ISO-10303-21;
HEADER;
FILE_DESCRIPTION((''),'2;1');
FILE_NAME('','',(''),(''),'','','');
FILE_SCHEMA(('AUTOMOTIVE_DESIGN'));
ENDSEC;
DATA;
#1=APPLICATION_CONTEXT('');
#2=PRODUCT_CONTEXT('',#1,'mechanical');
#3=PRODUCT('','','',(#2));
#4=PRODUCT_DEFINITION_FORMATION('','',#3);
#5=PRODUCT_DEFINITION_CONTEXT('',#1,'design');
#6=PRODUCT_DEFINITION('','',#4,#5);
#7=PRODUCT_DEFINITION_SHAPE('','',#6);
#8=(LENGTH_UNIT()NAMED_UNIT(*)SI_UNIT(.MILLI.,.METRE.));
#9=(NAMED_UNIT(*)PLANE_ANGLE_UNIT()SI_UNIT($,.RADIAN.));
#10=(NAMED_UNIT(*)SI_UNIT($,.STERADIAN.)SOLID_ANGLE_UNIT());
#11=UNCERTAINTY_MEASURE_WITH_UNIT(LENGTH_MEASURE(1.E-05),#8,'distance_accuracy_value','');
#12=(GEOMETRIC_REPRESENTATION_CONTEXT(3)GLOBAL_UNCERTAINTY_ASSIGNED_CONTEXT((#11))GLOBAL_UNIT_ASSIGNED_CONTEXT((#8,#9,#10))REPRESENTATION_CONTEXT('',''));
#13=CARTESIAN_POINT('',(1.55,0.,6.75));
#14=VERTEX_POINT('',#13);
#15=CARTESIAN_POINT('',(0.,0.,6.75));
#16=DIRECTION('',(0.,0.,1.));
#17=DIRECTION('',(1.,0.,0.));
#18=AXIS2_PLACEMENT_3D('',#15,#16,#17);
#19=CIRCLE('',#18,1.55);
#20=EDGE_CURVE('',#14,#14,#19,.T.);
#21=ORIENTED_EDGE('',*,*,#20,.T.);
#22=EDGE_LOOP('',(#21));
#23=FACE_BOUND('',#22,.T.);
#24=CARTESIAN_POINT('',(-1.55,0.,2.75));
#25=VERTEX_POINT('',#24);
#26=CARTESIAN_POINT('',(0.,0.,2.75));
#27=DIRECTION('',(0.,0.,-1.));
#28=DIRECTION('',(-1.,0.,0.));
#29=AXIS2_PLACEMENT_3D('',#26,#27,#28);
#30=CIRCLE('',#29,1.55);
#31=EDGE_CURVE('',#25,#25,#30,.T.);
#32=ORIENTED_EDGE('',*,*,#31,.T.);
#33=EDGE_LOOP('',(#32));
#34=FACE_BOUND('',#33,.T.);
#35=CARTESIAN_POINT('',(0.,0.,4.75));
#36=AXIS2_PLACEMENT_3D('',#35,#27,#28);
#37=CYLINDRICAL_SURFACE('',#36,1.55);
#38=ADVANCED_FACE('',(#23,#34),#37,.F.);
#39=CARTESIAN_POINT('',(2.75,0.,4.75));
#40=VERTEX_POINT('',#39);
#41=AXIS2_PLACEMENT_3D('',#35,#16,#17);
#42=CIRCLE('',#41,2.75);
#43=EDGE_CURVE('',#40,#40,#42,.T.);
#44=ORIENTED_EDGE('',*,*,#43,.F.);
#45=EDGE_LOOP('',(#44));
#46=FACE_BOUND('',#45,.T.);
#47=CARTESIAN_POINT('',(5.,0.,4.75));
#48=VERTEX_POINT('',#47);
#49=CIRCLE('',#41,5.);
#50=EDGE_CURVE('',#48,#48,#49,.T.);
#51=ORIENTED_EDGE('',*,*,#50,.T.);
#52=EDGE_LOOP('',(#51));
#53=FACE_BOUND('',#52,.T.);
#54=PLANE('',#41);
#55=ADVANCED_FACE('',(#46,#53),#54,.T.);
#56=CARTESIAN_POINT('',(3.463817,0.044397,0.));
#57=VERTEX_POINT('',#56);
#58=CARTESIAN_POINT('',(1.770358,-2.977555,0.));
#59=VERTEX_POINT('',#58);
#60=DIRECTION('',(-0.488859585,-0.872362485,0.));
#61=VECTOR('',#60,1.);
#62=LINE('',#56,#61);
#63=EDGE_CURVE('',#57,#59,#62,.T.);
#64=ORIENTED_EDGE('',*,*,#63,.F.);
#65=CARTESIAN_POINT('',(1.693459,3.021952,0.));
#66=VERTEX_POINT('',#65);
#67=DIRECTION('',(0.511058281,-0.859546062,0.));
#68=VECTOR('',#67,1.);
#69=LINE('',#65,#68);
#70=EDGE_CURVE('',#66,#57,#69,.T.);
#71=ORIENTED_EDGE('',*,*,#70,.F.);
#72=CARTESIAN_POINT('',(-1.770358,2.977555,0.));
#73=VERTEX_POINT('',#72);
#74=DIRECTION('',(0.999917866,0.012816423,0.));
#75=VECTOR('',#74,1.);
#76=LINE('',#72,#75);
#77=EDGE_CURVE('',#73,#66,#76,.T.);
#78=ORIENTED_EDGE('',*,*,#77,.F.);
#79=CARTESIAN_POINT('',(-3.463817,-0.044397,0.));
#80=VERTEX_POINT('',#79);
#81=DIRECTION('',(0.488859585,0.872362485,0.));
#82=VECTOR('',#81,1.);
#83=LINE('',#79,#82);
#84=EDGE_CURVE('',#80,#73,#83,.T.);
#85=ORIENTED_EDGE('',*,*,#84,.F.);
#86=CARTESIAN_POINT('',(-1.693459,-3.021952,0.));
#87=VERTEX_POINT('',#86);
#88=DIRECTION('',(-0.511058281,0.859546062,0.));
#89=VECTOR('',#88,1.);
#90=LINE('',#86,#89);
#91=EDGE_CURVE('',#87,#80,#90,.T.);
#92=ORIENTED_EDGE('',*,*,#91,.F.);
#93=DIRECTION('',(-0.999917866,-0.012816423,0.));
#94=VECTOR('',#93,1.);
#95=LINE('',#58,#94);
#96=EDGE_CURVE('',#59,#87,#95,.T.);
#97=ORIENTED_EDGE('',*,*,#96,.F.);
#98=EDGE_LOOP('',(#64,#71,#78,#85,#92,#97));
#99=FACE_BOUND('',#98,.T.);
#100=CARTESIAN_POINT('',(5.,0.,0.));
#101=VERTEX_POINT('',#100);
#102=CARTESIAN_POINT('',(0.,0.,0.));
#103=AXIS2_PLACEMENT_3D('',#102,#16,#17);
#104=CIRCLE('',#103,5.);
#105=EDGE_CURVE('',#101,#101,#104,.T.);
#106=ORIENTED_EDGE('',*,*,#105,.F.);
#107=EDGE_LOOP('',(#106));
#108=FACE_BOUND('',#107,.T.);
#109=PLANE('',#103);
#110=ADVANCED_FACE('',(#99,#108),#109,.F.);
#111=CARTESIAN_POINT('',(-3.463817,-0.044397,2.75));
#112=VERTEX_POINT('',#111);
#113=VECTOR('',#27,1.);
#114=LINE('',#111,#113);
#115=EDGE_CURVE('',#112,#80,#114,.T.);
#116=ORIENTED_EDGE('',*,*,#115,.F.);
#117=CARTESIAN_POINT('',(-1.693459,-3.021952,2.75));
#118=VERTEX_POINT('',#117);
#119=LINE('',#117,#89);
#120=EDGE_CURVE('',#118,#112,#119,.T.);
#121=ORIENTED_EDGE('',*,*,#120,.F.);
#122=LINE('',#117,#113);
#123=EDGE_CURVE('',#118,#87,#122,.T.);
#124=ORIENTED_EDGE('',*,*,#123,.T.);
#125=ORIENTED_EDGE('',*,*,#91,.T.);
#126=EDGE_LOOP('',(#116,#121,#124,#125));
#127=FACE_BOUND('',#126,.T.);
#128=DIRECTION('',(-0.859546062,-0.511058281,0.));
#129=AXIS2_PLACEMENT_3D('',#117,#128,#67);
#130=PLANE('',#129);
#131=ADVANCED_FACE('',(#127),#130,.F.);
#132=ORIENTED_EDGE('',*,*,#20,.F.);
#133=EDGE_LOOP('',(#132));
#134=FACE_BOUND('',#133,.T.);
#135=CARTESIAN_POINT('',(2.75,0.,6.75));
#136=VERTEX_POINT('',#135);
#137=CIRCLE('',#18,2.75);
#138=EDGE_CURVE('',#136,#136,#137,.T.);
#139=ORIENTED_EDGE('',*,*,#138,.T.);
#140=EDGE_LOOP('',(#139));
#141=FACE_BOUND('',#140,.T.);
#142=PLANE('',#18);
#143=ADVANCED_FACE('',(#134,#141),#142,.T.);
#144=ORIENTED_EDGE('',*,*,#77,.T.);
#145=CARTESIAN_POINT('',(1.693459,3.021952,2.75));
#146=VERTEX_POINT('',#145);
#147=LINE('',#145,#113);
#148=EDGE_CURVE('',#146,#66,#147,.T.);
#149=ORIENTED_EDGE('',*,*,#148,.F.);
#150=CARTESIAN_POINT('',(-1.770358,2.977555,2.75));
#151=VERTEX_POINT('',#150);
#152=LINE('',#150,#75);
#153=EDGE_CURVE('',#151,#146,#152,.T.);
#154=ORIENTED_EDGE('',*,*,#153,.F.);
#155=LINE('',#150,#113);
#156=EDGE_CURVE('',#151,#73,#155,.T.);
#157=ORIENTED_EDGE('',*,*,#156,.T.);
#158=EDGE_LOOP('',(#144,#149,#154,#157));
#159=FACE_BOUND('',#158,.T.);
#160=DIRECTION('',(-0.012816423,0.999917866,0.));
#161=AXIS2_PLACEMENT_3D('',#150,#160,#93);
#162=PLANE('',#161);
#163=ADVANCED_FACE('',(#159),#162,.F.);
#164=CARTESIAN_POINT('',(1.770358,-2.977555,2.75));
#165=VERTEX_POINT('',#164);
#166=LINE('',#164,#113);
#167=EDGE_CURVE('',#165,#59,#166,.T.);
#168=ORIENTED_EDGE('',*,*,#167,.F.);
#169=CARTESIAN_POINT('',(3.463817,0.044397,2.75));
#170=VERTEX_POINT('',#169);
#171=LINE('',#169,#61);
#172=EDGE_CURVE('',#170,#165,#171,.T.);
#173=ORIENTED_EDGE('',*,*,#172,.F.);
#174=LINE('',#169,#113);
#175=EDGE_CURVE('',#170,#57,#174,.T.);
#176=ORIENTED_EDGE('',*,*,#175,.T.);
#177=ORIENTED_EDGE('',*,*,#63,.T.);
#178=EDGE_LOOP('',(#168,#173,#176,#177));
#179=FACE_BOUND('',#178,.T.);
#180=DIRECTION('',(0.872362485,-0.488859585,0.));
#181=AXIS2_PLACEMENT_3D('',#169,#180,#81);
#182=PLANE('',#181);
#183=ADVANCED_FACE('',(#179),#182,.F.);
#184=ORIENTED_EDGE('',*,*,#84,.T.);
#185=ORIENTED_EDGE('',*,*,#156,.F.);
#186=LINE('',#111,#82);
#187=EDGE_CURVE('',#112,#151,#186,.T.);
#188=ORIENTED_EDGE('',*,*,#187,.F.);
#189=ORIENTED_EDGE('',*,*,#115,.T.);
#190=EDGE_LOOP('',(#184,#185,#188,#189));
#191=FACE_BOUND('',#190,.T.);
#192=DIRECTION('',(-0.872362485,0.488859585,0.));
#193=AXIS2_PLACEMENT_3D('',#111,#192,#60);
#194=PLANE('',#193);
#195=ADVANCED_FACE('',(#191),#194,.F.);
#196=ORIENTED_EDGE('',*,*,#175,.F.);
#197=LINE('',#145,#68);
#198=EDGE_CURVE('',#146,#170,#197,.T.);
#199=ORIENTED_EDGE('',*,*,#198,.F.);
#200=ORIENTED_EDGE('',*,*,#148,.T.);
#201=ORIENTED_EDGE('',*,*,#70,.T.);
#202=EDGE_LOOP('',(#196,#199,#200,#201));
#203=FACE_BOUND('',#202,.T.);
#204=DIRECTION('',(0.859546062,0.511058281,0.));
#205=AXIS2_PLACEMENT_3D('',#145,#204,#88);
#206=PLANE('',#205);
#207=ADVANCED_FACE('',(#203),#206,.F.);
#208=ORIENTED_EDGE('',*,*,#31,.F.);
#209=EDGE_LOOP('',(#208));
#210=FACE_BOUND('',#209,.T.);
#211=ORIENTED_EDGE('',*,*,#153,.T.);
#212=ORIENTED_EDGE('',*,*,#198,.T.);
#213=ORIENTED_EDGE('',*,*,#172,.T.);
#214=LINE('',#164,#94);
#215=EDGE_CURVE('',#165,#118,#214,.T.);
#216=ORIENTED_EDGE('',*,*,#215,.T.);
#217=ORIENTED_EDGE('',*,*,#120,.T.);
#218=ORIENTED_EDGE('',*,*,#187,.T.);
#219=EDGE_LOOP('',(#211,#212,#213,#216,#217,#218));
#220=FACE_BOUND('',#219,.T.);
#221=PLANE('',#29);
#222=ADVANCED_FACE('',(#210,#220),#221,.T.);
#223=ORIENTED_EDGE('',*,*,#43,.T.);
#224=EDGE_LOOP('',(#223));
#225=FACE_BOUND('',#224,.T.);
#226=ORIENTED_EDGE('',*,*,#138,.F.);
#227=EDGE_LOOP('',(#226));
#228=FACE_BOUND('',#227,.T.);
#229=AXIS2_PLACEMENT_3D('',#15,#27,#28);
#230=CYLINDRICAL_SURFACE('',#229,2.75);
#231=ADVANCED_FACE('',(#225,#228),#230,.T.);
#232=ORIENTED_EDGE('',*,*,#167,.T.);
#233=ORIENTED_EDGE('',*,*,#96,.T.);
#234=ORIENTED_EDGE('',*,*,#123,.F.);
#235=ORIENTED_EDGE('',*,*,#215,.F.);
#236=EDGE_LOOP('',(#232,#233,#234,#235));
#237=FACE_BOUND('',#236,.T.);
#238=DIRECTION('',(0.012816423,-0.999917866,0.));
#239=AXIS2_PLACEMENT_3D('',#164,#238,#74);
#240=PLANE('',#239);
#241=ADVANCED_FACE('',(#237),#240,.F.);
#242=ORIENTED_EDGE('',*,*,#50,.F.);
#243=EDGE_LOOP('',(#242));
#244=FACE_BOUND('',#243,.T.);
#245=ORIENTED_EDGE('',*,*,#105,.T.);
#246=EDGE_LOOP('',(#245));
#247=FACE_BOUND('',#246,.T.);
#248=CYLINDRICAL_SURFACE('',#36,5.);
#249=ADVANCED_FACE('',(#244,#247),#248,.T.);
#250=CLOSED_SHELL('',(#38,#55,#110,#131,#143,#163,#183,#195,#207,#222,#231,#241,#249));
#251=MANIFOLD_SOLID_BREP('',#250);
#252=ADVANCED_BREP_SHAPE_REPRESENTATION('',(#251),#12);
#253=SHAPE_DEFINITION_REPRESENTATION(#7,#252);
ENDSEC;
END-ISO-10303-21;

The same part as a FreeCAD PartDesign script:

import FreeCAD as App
import Part
import Sketcher

V = App.Vector


def add_polygon(sketch, points):
    """Adds a closed chain of lines whose ends are joined by coincident constraints."""
    first, n = sketch.GeometryCount, len(points)
    for a, b in zip(points, points[1:] + points[:1]):
        sketch.addGeometry(Part.LineSegment(App.Vector(*a, 0), App.Vector(*b, 0)), False)
    for i in range(n):
        sketch.addConstraint(Sketcher.Constraint("Coincident", first + i, 2, first + (i + 1) % n, 1))

doc = App.newDocument("Part")
body = doc.addObject("PartDesign::Body", "Body")

sketch1 = body.newObject("Sketcher::SketchObject", "Sketch")
sketch1.AttachmentSupport = (doc.getObject("XY_Plane"), [""])
sketch1.MapMode = "FlatFace"
sketch1.addGeometry([
    Part.Circle(V(0, 0, 0), V(0, 0, 1), 5),
    Part.Circle(V(0, 0, 0), V(0, 0, 1), 1.6),
], False)
sketch1.addConstraint([
    Sketcher.Constraint("Coincident", 0, 3, -1, 1),
    Sketcher.Constraint("Coincident", 1, 3, -1, 1),
    Sketcher.Constraint("Diameter", 0, 10.0),
    Sketcher.Constraint("Diameter", 1, 3.1),
])
pad1 = body.newObject("PartDesign::Pad", "Pad")
pad1.Profile = sketch1
pad1.Length = 4.75

sketch2 = body.newObject("Sketcher::SketchObject", "Sketch001")
sketch2.AttachmentSupport = (doc.getObject("XY_Plane"), [""])
sketch2.MapMode = "FlatFace"
sketch2.AttachmentOffset = App.Placement(V(0, 0, 4.75), App.Rotation())
sketch2.addGeometry([
    Part.Circle(V(0, 0, 0), V(0, 0, 1), 2.8),
    Part.Circle(V(0, 0, 0), V(0, 0, 1), 1.6),
], False)
sketch2.addConstraint([
    Sketcher.Constraint("Coincident", 0, 3, -1, 1),
    Sketcher.Constraint("Coincident", 1, 3, -1, 1),
    Sketcher.Constraint("Diameter", 0, 5.5),
    Sketcher.Constraint("Diameter", 1, 3.1),
])
pad2 = body.newObject("PartDesign::Pad", "Pad001")
pad2.Profile = sketch2
pad2.Length = 2

sketch3 = body.newObject("Sketcher::SketchObject", "Sketch002")
sketch3.AttachmentSupport = (doc.getObject("XY_Plane"), [""])
sketch3.MapMode = "FlatFace"
add_polygon(sketch3, [(-1.770358, 2.977555), (1.693459, 3.021952), (3.463817, 0.044397), (1.770358, -2.977555), (-1.693459, -3.021952), (-3.463817, -0.044397)])
sketch3.addConstraint([
    Sketcher.Constraint("Symmetric", 0, 2, 3, 2, -1, 1),
    Sketcher.Constraint("Symmetric", 1, 2, 4, 2, -1, 1),
    Sketcher.Constraint("Symmetric", 2, 2, 5, 2, -1, 1),
    Sketcher.Constraint("Equal", 0, 1),
    Sketcher.Constraint("Equal", 1, 2),
    Sketcher.Constraint("Distance", 0, 3.464102),
    Sketcher.Constraint("DistanceX", 0, 2, 2, 2, 0.076899),
    Sketcher.Constraint("DistanceX", -1, 1, 0, 2, 1.693459),
    Sketcher.Constraint("DistanceX", 2, 2, 1, 2, 1.693459),
])
pocket1 = body.newObject("PartDesign::Pocket", "Pocket")
pocket1.Profile = sketch3
pocket1.Length = 2.75
pocket1.Reversed = True

doc.recompute()
